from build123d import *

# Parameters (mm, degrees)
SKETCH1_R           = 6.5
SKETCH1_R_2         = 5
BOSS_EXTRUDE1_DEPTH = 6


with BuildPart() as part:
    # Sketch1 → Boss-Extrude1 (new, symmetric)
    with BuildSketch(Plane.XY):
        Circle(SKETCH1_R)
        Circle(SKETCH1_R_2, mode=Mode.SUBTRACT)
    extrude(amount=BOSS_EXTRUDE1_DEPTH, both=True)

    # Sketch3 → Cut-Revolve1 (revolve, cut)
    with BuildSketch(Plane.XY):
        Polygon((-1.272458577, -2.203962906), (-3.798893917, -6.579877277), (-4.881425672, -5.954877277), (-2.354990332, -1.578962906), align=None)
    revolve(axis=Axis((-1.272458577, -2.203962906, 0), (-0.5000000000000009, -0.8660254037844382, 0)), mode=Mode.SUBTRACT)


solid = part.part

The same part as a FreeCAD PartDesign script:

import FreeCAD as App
import Part
import Sketcher
Q = App.Units.Quantity

doc = App.newDocument("Part")
body = doc.addObject("PartDesign::Body", "Body")

sketch1 = body.newObject("Sketcher::SketchObject", "Sketch")
sketch1.AttachmentSupport = (doc.getObject("XY_Plane"), [""])
sketch1.MapMode = "FlatFace"
sketch1.addGeometry([
    Part.Circle(App.Vector(0, 0, 0), App.Vector(0, 0, 1), 6),
    Part.Circle(App.Vector(0, 0, 0), App.Vector(0, 0, 1), 5),
], False)
sketch1.addConstraint([
    Sketcher.Constraint("Coincident", 0, 3, -1, 1),
    Sketcher.Constraint("Coincident", 1, 3, -1, 1),
    Sketcher.Constraint("Diameter", 0, 13.0),
    Sketcher.Constraint("Diameter", 1, 10.0),
])
pad1 = body.newObject("PartDesign::Pad", "Pad")
pad1.Profile = sketch1
pad1.Length = 12
pad1.Midplane = True

sketch2 = body.newObject("Sketcher::SketchObject", "Sketch001")
sketch2.AttachmentSupport = (doc.getObject("XY_Plane"), [""])
sketch2.MapMode = "FlatFace"
sketch2.addGeometry([
    Part.LineSegment(App.Vector(-3.8, -6.6, 0), App.Vector(-1.3, -2.2, 0)),
    Part.LineSegment(App.Vector(-1.3, -2.2, 0), App.Vector(-2.4, -1.6, 0)),
    Part.LineSegment(App.Vector(-2.4, -1.6, 0), App.Vector(-4.9, -6, 0)),
    Part.LineSegment(App.Vector(-4.9, -6, 0), App.Vector(-3.8, -6.6, 0)),
], False)
sketch2.addGeometry(Part.LineSegment(App.Vector(-1.3, -2.2, 0), App.Vector(-3.8, -6.6, 0)), True)
sketch2.addConstraint([
    Sketcher.Constraint("Coincident", 0, 2, 1, 1),
    Sketcher.Constraint("Coincident", 1, 2, 2, 1),
    Sketcher.Constraint("Coincident", 2, 2, 3, 1),
    Sketcher.Constraint("Coincident", 3, 2, 0, 1),
    Sketcher.Constraint("Coincident", 4, 1, 0, 2),
    Sketcher.Constraint("Coincident", 4, 2, 3, 2),
    Sketcher.Constraint("Perpendicular", 0, 1),
    Sketcher.Constraint("Perpendicular", 1, 2),
    Sketcher.Constraint("Perpendicular", 2, 3),
    Sketcher.Constraint("Angle", 0, Q("60 deg")),
    Sketcher.Constraint("Distance", 1, 1.25),
    Sketcher.Constraint("Distance", 0, 5.052871),
    Sketcher.Constraint("DistanceX", 0, 2, -1, 1, 1.272459),
    Sketcher.Constraint("DistanceY", 0, 2, -1, 1, 2.203963),
])
groove = body.newObject("PartDesign::Groove", "Groove")
groove.Profile = sketch2
groove.ReferenceAxis = (sketch2, ["Axis0"])
groove.Angle = 360

doc.recompute()
